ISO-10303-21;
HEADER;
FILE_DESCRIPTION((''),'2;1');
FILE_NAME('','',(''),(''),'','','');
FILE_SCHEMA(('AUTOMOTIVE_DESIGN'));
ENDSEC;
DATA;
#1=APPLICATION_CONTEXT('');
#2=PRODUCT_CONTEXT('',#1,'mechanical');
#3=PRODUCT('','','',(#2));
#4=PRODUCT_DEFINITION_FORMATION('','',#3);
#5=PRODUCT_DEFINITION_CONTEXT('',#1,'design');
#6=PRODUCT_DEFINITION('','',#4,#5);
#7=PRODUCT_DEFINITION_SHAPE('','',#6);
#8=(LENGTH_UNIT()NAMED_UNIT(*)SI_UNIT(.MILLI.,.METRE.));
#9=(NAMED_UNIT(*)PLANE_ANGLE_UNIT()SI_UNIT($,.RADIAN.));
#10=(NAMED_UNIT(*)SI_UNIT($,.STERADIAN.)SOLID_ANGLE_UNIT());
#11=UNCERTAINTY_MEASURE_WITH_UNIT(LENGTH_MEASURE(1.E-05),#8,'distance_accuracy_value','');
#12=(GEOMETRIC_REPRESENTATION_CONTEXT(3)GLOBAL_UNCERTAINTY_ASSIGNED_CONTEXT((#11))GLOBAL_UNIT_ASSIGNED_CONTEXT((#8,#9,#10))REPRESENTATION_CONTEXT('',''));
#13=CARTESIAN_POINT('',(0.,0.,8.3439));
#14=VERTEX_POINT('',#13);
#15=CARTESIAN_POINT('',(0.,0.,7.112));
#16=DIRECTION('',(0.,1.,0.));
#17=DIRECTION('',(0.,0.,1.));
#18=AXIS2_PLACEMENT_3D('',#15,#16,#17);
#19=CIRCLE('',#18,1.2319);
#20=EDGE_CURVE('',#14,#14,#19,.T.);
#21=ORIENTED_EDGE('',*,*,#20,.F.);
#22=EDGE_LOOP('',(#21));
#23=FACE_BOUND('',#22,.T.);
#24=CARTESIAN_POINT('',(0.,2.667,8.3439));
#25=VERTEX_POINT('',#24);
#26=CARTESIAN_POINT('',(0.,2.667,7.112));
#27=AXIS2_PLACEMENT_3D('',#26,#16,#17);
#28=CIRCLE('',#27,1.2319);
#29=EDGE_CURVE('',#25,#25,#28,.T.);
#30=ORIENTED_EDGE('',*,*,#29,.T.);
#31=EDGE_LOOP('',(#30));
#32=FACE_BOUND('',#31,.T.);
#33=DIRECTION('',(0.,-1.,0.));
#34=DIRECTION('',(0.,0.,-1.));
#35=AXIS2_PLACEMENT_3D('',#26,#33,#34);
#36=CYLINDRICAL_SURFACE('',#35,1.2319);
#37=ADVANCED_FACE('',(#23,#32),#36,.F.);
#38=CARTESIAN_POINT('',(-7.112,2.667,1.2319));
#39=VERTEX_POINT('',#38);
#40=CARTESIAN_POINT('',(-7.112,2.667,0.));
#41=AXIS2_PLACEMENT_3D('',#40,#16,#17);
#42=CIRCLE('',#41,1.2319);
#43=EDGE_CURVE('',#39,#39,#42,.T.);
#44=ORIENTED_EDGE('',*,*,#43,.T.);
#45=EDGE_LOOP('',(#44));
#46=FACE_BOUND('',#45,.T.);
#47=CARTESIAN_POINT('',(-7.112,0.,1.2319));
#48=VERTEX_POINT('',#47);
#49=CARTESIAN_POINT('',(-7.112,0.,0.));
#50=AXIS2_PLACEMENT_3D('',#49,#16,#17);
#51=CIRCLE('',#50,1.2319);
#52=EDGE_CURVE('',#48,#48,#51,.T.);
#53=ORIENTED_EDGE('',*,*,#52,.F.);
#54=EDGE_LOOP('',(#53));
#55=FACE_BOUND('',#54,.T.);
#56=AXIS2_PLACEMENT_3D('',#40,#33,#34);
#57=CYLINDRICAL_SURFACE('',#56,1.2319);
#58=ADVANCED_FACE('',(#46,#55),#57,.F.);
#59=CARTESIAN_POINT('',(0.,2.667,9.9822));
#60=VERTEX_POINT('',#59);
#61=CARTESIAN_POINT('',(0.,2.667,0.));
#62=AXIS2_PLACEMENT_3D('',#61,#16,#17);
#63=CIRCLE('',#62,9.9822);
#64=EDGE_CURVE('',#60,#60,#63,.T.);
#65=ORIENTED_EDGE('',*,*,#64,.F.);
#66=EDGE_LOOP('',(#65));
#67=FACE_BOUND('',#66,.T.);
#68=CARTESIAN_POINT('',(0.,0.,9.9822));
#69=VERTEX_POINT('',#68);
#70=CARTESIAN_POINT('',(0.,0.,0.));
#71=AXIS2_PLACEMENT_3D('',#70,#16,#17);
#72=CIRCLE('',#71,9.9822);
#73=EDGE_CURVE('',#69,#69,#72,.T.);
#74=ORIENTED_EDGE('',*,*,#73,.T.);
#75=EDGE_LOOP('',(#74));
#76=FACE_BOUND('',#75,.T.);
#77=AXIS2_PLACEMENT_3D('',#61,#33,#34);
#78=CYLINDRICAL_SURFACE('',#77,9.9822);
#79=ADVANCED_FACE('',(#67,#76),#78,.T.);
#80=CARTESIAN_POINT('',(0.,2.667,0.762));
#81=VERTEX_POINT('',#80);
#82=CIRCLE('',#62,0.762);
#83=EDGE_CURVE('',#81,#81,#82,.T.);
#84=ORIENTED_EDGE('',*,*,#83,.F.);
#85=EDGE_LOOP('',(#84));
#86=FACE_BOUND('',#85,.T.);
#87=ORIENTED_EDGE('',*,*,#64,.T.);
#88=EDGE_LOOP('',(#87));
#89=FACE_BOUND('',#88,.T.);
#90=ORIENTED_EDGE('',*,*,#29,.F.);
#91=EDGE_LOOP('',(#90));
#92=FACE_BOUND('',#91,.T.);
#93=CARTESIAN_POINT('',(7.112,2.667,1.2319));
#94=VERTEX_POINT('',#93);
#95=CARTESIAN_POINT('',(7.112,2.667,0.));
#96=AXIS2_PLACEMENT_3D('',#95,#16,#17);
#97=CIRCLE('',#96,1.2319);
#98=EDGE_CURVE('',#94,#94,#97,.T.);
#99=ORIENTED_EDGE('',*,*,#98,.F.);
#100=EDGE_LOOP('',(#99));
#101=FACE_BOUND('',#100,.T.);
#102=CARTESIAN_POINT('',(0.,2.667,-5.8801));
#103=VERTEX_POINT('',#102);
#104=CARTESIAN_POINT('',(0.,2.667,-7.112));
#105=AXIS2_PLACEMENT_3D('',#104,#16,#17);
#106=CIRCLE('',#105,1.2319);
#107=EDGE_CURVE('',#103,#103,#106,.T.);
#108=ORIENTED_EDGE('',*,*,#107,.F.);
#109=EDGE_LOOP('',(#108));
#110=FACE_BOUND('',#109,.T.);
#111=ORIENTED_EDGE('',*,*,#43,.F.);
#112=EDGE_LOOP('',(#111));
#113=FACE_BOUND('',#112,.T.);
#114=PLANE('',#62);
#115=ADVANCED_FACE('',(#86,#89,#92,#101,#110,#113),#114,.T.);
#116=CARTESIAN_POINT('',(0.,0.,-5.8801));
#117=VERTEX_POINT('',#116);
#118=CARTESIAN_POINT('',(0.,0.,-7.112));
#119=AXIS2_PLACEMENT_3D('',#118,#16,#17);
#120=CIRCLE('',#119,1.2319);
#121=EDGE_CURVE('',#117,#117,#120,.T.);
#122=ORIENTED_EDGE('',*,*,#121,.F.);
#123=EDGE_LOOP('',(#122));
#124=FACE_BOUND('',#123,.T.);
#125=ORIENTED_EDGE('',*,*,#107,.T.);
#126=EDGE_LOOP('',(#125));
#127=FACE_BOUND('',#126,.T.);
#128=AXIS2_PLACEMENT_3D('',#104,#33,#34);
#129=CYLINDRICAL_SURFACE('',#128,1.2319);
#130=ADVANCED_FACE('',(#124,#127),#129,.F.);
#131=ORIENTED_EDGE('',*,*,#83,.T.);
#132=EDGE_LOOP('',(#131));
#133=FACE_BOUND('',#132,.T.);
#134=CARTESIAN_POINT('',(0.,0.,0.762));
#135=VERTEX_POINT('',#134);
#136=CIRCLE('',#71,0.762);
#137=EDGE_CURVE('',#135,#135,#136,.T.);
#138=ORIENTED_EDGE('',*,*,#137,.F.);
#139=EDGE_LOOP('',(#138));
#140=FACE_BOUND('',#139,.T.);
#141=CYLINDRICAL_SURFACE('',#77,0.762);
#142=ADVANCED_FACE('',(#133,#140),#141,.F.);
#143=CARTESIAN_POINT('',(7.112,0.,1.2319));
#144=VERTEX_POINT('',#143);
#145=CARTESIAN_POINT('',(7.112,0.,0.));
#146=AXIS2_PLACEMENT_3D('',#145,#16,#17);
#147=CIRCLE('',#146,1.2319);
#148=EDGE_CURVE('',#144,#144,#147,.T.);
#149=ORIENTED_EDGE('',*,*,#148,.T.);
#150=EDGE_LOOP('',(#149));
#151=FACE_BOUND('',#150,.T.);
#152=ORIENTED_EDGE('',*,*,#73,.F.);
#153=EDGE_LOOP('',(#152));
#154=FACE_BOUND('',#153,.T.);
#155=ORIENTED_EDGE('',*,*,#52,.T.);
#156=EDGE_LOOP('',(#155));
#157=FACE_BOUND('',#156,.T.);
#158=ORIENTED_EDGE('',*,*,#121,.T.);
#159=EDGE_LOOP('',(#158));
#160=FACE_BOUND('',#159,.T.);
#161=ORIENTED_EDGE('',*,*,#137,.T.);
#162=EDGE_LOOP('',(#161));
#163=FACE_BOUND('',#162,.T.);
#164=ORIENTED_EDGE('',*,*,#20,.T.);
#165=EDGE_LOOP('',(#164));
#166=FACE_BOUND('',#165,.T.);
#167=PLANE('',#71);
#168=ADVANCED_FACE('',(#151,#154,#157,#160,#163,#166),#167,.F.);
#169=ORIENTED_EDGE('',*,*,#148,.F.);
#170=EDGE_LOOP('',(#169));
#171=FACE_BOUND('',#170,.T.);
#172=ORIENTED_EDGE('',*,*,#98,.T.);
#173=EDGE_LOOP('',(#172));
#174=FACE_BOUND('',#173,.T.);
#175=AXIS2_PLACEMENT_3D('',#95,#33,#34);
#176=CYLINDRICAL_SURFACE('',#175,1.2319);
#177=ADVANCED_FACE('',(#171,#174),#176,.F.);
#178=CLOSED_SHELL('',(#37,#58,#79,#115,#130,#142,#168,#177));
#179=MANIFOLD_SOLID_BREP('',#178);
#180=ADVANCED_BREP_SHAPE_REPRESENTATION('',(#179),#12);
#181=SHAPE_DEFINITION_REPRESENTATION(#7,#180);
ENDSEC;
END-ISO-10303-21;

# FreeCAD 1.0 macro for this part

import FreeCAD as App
import Part
import Sketcher
Q = App.Units.Quantity

doc = App.newDocument("Part")
body = doc.addObject("PartDesign::Body", "Body")

sketch1 = body.newObject("Sketcher::SketchObject", "Sketch")
sketch1.AttachmentSupport = (doc.getObject("XZ_Plane"), [""])
sketch1.MapMode = "FlatFace"
sketch1.addGeometry([
    Part.Circle(App.Vector(0, 0, 0), App.Vector(0, 0, 1), 10),
    Part.Circle(App.Vector(0, -7.1, 0), App.Vector(0, 0, 1), 1.2),
    Part.Circle(App.Vector(-7.1, 0, 0), App.Vector(0, 0, 1), 1.2),
    Part.Circle(App.Vector(7.1, 0, 0), App.Vector(0, 0, 1), 1.2),
    Part.Circle(App.Vector(0, 0, 0), App.Vector(0, 0, 1), 0.8),
    Part.Circle(App.Vector(0, 7.1, 0), App.Vector(0, 0, 1), 1.2),
], False)
sketch1.addConstraint([
    Sketcher.Constraint("Coincident", 0, 3, -1, 1),
    Sketcher.Constraint("Coincident", 4, 3, -1, 1),
    Sketcher.Constraint("Equal", 1, 2),
    Sketcher.Constraint("Equal", 2, 3),
    Sketcher.Constraint("Equal", 3, 5),
    Sketcher.Constraint("Symmetric", 2, 3, 3, 3, -1, 1),
    Sketcher.Constraint("Symmetric", 1, 3, 5, 3, -1, 1),
    Sketcher.Constraint("PointOnObject", 1, 3, -2),
    Sketcher.Constraint("PointOnObject", 2, 3, -1),
    Sketcher.Constraint("Diameter", 4, Q("0.06 in")),
    Sketcher.Constraint("Diameter", 0, Q("0.786 in")),
    Sketcher.Constraint("Diameter", 1, Q("0.097 in")),
    Sketcher.Constraint("DistanceY", 1, 3, -1, 1, Q("0.28 in")),
    Sketcher.Constraint("DistanceX", 2, 3, -1, 1, Q("0.28 in")),
])
pad1 = body.newObject("PartDesign::Pad", "Pad")
pad1.Profile = sketch1
pad1.Length = Q("0.105 in")
pad1.Reversed = True

doc.recompute()
